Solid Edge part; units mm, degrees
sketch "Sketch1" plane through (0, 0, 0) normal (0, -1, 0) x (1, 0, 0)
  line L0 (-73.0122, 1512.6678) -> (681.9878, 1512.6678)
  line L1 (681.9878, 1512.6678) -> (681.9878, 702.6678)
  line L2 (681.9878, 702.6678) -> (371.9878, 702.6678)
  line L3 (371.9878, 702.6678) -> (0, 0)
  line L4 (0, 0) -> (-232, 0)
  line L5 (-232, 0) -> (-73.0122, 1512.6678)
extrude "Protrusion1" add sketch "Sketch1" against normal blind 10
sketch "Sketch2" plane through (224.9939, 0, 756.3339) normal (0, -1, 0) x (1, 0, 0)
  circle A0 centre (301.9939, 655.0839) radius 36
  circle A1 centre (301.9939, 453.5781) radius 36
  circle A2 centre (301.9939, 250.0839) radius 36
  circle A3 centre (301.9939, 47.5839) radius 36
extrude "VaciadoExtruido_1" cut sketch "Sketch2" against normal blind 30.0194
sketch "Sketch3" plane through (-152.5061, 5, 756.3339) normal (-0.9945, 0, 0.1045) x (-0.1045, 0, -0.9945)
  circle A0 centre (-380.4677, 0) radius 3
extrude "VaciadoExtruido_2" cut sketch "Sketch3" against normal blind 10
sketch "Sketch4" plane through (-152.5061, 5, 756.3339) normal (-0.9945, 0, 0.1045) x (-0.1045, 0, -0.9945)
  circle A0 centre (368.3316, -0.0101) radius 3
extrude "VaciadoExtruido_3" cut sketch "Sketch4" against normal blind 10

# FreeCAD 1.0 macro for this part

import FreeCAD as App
import Part
import Sketcher

V = App.Vector
Q = App.Units.Quantity

doc = App.newDocument("Part")
body = doc.addObject("PartDesign::Body", "Body")

sketch1 = doc.addObject("Sketcher::SketchObject", "Sketch")
body.addObject(sketch1)
sketch1.AttachmentSupport = (doc.XZ_Plane, [""])
sketch1.MapMode = "FlatFace"
sketch1.addGeometry([
    Part.LineSegment(V(681.9878, 1512.6678, 0), V(-73.0122, 1512.6678, 0)),
    Part.LineSegment(V(-73.0122, 1512.6678, 0), V(-232, 0, 0)),
    Part.LineSegment(V(-232, 0, 0), V(0, 0, 0)),
    Part.LineSegment(V(0, 0, 0), V(371.9878, 702.6678, 0)),
    Part.LineSegment(V(371.9878, 702.6678, 0), V(681.9878, 702.6678, 0)),
    Part.LineSegment(V(681.9878, 702.6678, 0), V(681.9878, 1512.6678, 0)),
], False)
sketch1.addConstraint([
    Sketcher.Constraint("Coincident", 0, 2, 1, 1),
    Sketcher.Constraint("Coincident", 1, 2, 2, 1),
    Sketcher.Constraint("Coincident", 2, 2, 3, 1),
    Sketcher.Constraint("Coincident", 3, 2, 4, 1),
    Sketcher.Constraint("Coincident", 4, 2, 5, 1),
    Sketcher.Constraint("Coincident", 5, 2, 0, 1),
    Sketcher.Constraint("Horizontal", 0),
    Sketcher.Constraint("Horizontal", 2),
    Sketcher.Constraint("Horizontal", 4),
    Sketcher.Constraint("Vertical", 5),
    Sketcher.Constraint("Coincident", 2, 2, -1, 1),
    Sketcher.Constraint("DistanceX", 0, 2, 0, 1, Q("755 mm")),
    Sketcher.Constraint("DistanceX", 2, 1, 2, 2, Q("232 mm")),
    Sketcher.Constraint("DistanceX", 4, 1, 4, 2, Q("310 mm")),
    Sketcher.Constraint("DistanceY", 5, 1, 5, 2, Q("810 mm")),
    Sketcher.Constraint("Angle", 1, Q("-96 deg")),
    Sketcher.Constraint("Distance", 1, Q("1521 mm")),
])
pad1 = doc.addObject("PartDesign::Pad", "Pad")
body.addObject(pad1)
pad1.Profile = sketch1
pad1.Length = 10
pad1.Reversed = True

sketch2 = doc.addObject("Sketcher::SketchObject", "Sketch001")
body.addObject(sketch2)
sketch2.AttachmentSupport = (doc.XZ_Plane, [""])
sketch2.MapMode = "FlatFace"
sketch2.addGeometry([
    Part.Circle(V(526.9878, 1411.4178, 0), V(0, 0, 1), 36),
    Part.Circle(V(526.9878, 1209.912, 0), V(0, 0, 1), 36),
    Part.Circle(V(526.9878, 1006.4178, 0), V(0, 0, 1), 36),
    Part.Circle(V(526.9878, 803.9178, 0), V(0, 0, 1), 36),
], False)
sketch2.addConstraint([
    Sketcher.Constraint("Equal", 0, 1),
    Sketcher.Constraint("Equal", 1, 2),
    Sketcher.Constraint("Equal", 2, 3),
    Sketcher.Constraint("Vertical", 0, 3, 1, 3),
    Sketcher.Constraint("Vertical", 1, 3, 2, 3),
    Sketcher.Constraint("Vertical", 2, 3, 3, 3),
    Sketcher.Constraint("Diameter", 0, Q("72 mm")),
    Sketcher.Constraint("DistanceY", 2, 3, 0, 3, Q("405 mm")),
    Sketcher.Constraint("DistanceY", 3, 3, 2, 3, Q("202.5 mm")),
    Sketcher.Constraint("DistanceY", -1, 1, 1, 3, Q("1209.912 mm")),
    Sketcher.Constraint("DistanceX", -1, 1, 0, 3, Q("526.9878 mm")),
    Sketcher.Constraint("DistanceY", -1, 1, 0, 3, Q("1411.4178 mm")),
])
pocket1 = doc.addObject("PartDesign::Pocket", "Pocket")
body.addObject(pocket1)
pocket1.Profile = sketch2
pocket1.Length = 30.0194

sketch3 = doc.addObject("Sketcher::SketchObject", "Sketch002")
body.addObject(sketch3)
sketch3.Placement = App.Placement(V(-152.5061, 5, 756.3339), App.Rotation(V(-0.104528463, 0, -0.994521895), V(0, -0.999999999, 0), V(-0.994521895, 0, 0.104528463), "ZXY"))
sketch3.addGeometry(Part.Circle(V(-380.4677, 0, 0), V(0, 0, 1), 3), False)
sketch3.addConstraint([
    Sketcher.Constraint("PointOnObject", 0, 3, -1),
    Sketcher.Constraint("Diameter", 0, Q("6 mm")),
    Sketcher.Constraint("DistanceX", 0, 3, -1, 1, Q("380.4677 mm")),
])
pocket2 = doc.addObject("PartDesign::Pocket", "Pocket001")
body.addObject(pocket2)
pocket2.Profile = sketch3
pocket2.Length = 10

sketch4 = doc.addObject("Sketcher::SketchObject", "Sketch003")
body.addObject(sketch4)
sketch4.Placement = App.Placement(V(-152.5061, 5, 756.3339), App.Rotation(V(-0.104528463, 0, -0.994521895), V(0, -0.999999999, 0), V(-0.994521895, 0, 0.104528463), "ZXY"))
sketch4.addGeometry(Part.Circle(V(368.3316, -0.0101, 0), V(0, 0, 1), 3), False)
sketch4.addConstraint([
    Sketcher.Constraint("Diameter", 0, Q("6 mm")),
    Sketcher.Constraint("DistanceY", 0, 3, -1, 1, Q("0.01 mm")),
    Sketcher.Constraint("DistanceX", -1, 1, 0, 3, Q("368.3316 mm")),
])
pocket3 = doc.addObject("PartDesign::Pocket", "Pocket002")
body.addObject(pocket3)
pocket3.Profile = sketch4
pocket3.Length = 10

doc.recompute()
